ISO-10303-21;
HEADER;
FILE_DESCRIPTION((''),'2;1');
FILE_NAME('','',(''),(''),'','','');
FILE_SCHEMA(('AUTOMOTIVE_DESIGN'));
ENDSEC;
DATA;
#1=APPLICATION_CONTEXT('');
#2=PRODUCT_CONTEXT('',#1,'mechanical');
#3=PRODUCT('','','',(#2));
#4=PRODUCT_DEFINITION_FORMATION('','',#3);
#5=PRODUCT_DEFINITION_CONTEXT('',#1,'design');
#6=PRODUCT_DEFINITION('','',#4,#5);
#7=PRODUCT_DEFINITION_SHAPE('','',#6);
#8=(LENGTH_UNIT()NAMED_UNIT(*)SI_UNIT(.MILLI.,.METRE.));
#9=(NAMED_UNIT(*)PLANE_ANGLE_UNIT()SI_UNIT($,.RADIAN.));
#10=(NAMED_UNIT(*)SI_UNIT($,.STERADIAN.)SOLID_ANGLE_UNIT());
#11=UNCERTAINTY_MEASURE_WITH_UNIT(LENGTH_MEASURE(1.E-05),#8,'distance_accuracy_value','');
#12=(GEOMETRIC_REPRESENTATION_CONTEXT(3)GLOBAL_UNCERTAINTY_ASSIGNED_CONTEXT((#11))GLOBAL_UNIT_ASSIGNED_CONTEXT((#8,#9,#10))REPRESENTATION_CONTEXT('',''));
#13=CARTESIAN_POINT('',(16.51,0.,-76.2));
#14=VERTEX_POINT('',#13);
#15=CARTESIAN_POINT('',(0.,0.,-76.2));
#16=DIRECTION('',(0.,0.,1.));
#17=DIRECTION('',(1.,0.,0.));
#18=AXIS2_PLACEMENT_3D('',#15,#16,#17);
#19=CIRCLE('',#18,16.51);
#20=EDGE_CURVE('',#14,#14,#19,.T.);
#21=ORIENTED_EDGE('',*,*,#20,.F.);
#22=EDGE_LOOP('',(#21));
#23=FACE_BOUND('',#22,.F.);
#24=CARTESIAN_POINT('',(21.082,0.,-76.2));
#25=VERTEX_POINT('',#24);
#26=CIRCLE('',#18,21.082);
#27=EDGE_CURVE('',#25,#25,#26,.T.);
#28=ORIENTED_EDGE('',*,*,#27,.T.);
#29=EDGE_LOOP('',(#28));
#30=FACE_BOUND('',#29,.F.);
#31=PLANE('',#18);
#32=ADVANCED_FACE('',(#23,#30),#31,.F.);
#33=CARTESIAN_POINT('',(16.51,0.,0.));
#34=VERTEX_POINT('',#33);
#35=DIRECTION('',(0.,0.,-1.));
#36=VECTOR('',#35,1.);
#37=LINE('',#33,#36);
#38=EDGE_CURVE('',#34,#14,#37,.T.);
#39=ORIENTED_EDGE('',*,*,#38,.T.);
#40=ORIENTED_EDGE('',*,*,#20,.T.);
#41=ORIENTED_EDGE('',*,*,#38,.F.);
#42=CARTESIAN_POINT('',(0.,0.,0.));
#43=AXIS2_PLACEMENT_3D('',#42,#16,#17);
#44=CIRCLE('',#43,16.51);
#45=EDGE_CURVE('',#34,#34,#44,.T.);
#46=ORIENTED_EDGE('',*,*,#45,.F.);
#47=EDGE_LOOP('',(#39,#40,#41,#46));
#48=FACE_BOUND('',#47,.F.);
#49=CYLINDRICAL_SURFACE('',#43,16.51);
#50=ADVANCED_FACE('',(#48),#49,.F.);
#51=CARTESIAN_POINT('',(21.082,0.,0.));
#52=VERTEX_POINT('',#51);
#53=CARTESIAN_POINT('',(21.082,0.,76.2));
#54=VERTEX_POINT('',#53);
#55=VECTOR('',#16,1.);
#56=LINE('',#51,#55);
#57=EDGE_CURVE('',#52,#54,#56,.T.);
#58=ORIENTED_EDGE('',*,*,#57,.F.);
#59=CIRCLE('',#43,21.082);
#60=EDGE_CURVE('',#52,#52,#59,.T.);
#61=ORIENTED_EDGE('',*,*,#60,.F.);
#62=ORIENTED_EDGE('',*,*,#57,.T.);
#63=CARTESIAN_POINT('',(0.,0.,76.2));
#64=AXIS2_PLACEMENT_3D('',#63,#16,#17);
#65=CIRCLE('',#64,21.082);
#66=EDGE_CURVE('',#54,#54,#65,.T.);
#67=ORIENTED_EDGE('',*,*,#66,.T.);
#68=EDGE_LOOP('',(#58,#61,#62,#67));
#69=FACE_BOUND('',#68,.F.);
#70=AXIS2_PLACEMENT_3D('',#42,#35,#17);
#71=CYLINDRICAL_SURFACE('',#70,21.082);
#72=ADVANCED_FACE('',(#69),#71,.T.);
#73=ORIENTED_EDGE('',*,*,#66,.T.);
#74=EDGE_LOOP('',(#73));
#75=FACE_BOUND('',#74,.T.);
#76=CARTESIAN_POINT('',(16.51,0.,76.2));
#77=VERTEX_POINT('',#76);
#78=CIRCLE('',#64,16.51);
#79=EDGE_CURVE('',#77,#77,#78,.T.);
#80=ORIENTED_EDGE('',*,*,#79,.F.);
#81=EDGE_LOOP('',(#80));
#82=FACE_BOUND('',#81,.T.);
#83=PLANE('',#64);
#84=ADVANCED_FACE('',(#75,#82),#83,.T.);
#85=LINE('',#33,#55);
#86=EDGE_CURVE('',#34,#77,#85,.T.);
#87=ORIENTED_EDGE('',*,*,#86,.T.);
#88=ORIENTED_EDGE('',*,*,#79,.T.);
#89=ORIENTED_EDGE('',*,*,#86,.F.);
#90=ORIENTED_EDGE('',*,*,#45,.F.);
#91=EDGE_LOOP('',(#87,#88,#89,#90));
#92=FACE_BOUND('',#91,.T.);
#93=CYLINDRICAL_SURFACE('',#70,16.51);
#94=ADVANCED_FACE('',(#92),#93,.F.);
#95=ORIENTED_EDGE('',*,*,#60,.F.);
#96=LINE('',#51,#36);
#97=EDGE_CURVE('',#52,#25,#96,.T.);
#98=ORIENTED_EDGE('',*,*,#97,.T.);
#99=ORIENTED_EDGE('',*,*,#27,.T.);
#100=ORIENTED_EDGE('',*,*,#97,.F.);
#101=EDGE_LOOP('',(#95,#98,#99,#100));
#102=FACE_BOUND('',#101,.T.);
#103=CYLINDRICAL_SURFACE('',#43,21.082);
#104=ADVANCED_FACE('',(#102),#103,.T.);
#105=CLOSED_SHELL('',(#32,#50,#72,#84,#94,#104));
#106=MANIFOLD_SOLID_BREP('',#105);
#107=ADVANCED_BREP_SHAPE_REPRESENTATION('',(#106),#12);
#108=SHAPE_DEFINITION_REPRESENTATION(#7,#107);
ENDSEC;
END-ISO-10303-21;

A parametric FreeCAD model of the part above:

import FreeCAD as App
import Part
import Sketcher

V = App.Vector
Q = App.Units.Quantity

doc = App.newDocument("Part")
body = doc.addObject("PartDesign::Body", "Body")

sketch1 = body.newObject("Sketcher::SketchObject", "Sketch")
sketch1.AttachmentSupport = (doc.getObject("XY_Plane"), [""])
sketch1.MapMode = "FlatFace"
sketch1.addGeometry([
    Part.Circle(V(0, 0, 0), V(0, 0, 1), 21.082),
    Part.Circle(V(0, 0, 0), V(0, 0, 1), 16.51),
], False)
sketch1.addConstraint([
    Sketcher.Constraint("Coincident", 0, 3, -1, 1),
    Sketcher.Constraint("Coincident", 1, 3, -1, 1),
    Sketcher.Constraint("Diameter", 1, Q("1.3 in")),
    Sketcher.Constraint("Diameter", 0, Q("1.66 in")),
])
pad1 = body.newObject("PartDesign::Pad", "Pad")
pad1.Profile = sketch1
pad1.Length = Q("6 in")
pad1.Midplane = True

doc.recompute()
